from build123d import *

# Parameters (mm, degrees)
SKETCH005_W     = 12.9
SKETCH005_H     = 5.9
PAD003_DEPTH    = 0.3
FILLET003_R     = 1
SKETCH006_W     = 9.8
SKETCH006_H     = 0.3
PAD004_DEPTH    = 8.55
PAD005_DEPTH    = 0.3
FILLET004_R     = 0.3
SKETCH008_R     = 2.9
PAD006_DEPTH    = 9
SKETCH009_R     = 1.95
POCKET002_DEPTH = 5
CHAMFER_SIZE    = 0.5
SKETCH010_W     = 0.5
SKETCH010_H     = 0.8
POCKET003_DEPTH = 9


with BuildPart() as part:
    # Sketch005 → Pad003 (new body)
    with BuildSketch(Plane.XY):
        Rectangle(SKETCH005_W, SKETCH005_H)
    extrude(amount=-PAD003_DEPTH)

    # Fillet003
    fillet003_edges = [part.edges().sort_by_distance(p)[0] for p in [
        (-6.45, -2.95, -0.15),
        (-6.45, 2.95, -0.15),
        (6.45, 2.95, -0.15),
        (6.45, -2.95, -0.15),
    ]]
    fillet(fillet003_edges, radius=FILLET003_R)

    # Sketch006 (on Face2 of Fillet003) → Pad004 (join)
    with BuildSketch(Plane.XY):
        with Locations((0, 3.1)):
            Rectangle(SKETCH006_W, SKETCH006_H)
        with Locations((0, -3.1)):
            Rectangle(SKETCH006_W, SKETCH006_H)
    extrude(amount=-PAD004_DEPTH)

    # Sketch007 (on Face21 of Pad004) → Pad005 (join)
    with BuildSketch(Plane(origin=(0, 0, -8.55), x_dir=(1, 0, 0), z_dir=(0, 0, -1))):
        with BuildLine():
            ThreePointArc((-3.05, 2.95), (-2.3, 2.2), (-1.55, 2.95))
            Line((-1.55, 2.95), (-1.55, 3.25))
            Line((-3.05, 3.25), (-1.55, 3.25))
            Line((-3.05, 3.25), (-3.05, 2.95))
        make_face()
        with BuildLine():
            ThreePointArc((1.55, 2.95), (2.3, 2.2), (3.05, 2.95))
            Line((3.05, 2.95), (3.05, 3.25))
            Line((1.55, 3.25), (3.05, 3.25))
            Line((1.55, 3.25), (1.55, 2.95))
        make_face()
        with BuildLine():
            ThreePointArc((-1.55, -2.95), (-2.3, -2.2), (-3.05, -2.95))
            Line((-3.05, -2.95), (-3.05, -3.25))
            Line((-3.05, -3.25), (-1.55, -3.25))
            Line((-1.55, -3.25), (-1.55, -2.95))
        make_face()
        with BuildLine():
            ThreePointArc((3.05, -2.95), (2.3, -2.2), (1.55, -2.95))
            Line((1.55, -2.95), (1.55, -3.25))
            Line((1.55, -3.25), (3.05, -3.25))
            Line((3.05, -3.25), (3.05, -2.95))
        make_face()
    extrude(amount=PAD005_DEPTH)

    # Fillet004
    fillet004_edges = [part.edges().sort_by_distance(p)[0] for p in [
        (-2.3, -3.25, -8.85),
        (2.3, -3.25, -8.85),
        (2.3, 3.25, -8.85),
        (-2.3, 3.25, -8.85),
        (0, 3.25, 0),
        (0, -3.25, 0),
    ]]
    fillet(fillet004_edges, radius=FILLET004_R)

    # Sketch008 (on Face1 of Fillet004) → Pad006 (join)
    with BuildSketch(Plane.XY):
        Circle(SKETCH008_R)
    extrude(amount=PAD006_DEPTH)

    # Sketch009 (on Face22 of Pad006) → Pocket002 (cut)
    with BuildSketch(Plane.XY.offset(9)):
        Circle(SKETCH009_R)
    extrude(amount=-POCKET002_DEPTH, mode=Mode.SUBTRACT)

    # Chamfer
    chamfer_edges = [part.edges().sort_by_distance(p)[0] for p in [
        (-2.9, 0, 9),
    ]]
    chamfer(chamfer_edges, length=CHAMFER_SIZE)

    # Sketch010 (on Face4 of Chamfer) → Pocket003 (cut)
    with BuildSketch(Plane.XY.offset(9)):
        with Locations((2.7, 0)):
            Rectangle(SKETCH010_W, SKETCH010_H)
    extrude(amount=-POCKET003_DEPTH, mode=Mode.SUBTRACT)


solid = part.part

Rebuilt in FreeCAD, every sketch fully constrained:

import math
import FreeCAD as App
import Part
import Sketcher
from FreeCAD import Vector


def edges_at(feature, points):
    """Names of the edges that pass closest to the given points."""
    edges = feature.Shape.Edges
    near = lambda p: min(range(len(edges)), key=lambda i: edges[i].distToShape(Part.Vertex(*p))[0])
    return sorted({f"Edge{near(p) + 1}" for p in points})


def add_polygon(sketch, points):
    """Adds a closed chain of lines whose ends are joined by coincident constraints."""
    first, n = sketch.GeometryCount, len(points)
    for a, b in zip(points, points[1:] + points[:1]):
        sketch.addGeometry(Part.LineSegment(App.Vector(*a, 0), App.Vector(*b, 0)), False)
    for i in range(n):
        sketch.addConstraint(Sketcher.Constraint("Coincident", first + i, 2, first + (i + 1) % n, 1))

doc = App.newDocument("Part")
body = doc.addObject("PartDesign::Body", "Body")

sketch1 = doc.addObject("Sketcher::SketchObject", "Sketch")
body.addObject(sketch1)
sketch1.AttachmentSupport = (doc.XY_Plane, [""])
sketch1.MapMode = "FlatFace"
add_polygon(sketch1, [(-6.45, 2.95), (-6.45, -2.95), (6.45, -2.95), (6.45, 2.95)])
sketch1.addConstraint(Sketcher.Constraint("Vertical", 0))
sketch1.addConstraint(Sketcher.Constraint("Horizontal", 1))
sketch1.addConstraint(Sketcher.Constraint("Vertical", 2))
sketch1.addConstraint(Sketcher.Constraint("Horizontal", 3))
sketch1.addConstraint(Sketcher.Constraint("Symmetric", 0, 2, 2, 2, -1, 1))
sketch1.addConstraint(Sketcher.Constraint("DistanceX", 1, 1, 1, 2, 12.9))
sketch1.addConstraint(Sketcher.Constraint("DistanceY", 0, 2, 0, 1, 5.9))
pad1 = doc.addObject("PartDesign::Pad", "Pad")
body.addObject(pad1)
pad1.Profile = sketch1
pad1.Length = 0.3
pad1.Reversed = True
doc.recompute()

fillet = doc.addObject("PartDesign::Fillet", "Fillet")
body.addObject(fillet)
fillet.Base = (pad1, edges_at(pad1, [
    (-6.45, -2.95, -0.15),
    (-6.45, 2.95, -0.15),
    (6.45, 2.95, -0.15),
    (6.45, -2.95, -0.15),
]))
fillet.Radius = 1

sketch2 = doc.addObject("Sketcher::SketchObject", "Sketch001")
body.addObject(sketch2)
sketch2.AttachmentSupport = (doc.XY_Plane, [""])
sketch2.MapMode = "FlatFace"
add_polygon(sketch2, [(-4.9, 3.25), (-4.9, 2.95), (4.9, 2.95), (4.9, 3.25)])
add_polygon(sketch2, [(-4.9, -2.95), (-4.9, -3.25), (4.9, -3.25), (4.9, -2.95)])
sketch2.addConstraint(Sketcher.Constraint("Vertical", 0))
sketch2.addConstraint(Sketcher.Constraint("Horizontal", 1))
sketch2.addConstraint(Sketcher.Constraint("Vertical", 2))
sketch2.addConstraint(Sketcher.Constraint("Horizontal", 3))
sketch2.addConstraint(Sketcher.Constraint("Vertical", 4))
sketch2.addConstraint(Sketcher.Constraint("Horizontal", 5))
sketch2.addConstraint(Sketcher.Constraint("Vertical", 6))
sketch2.addConstraint(Sketcher.Constraint("Horizontal", 7))
sketch2.addConstraint(Sketcher.Constraint("Symmetric", 2, 2, 4, 2, -1, 1))
sketch2.addConstraint(Sketcher.Constraint("Symmetric", 0, 2, 6, 2, -1, 1))
sketch2.addConstraint(Sketcher.Constraint("Vertical", 3, 2, 4, 2))
sketch2.addConstraint(Sketcher.Constraint("DistanceX", 1, 1, 1, 2, 9.8))
sketch2.addConstraint(Sketcher.Constraint("DistanceY", 0, 2, 0, 1, 0.3))
sketch2.addConstraint(Sketcher.Constraint("DistanceY", 4, 2, 0, 2, 6.2))
pad2 = doc.addObject("PartDesign::Pad", "Pad001")
body.addObject(pad2)
pad2.Profile = sketch2
pad2.Length = 8.55
pad2.Reversed = True

sketch3 = doc.addObject("Sketcher::SketchObject", "Sketch002")
body.addObject(sketch3)
sketch3.AttachmentSupport = (doc.XY_Plane, [""])
sketch3.MapMode = "FlatFace"
sketch3.AttachmentOffset = App.Placement(Vector(0, 0, -8.55), App.Rotation())
sketch3.addGeometry(Part.ArcOfCircle(Part.Circle(Vector(-2.3, -2.95, 0), Vector(0, 0, 1), 0.75), math.radians(0), math.radians(180)), False)
sketch3.addGeometry(Part.LineSegment(Vector(-1.55, -2.95, 0), Vector(-1.55, -3.25, 0)), False)
sketch3.addGeometry(Part.LineSegment(Vector(-1.55, -3.25, 0), Vector(-3.05, -3.25, 0)), False)
sketch3.addGeometry(Part.LineSegment(Vector(-3.05, -3.25, 0), Vector(-3.05, -2.95, 0)), False)
sketch3.addGeometry(Part.ArcOfCircle(Part.Circle(Vector(2.3, -2.95, 0), Vector(0, 0, 1), 0.75), math.radians(0), math.radians(180)), False)
sketch3.addGeometry(Part.LineSegment(Vector(3.05, -2.95, 0), Vector(3.05, -3.25, 0)), False)
sketch3.addGeometry(Part.LineSegment(Vector(3.05, -3.25, 0), Vector(1.55, -3.25, 0)), False)
sketch3.addGeometry(Part.LineSegment(Vector(1.55, -3.25, 0), Vector(1.55, -2.95, 0)), False)
sketch3.addGeometry(Part.ArcOfCircle(Part.Circle(Vector(-2.3, 2.95, 0), Vector(0, 0, 1), 0.75), math.radians(180), math.radians(360)), False)
sketch3.addGeometry(Part.LineSegment(Vector(-3.05, 2.95, 0), Vector(-3.05, 3.25, 0)), False)
sketch3.addGeometry(Part.LineSegment(Vector(-3.05, 3.25, 0), Vector(-1.55, 3.25, 0)), False)
sketch3.addGeometry(Part.LineSegment(Vector(-1.55, 3.25, 0), Vector(-1.55, 2.95, 0)), False)
sketch3.addGeometry(Part.ArcOfCircle(Part.Circle(Vector(2.3, 2.95, 0), Vector(0, 0, 1), 0.75), math.radians(180), math.radians(360)), False)
sketch3.addGeometry(Part.LineSegment(Vector(1.55, 2.95, 0), Vector(1.55, 3.25, 0)), False)
sketch3.addGeometry(Part.LineSegment(Vector(1.55, 3.25, 0), Vector(3.05, 3.25, 0)), False)
sketch3.addGeometry(Part.LineSegment(Vector(3.05, 3.25, 0), Vector(3.05, 2.95, 0)), False)
sketch3.addConstraint(Sketcher.Constraint("Tangent", 0, 1, 1, 1))
sketch3.addConstraint(Sketcher.Constraint("Coincident", 1, 2, 2, 1))
sketch3.addConstraint(Sketcher.Constraint("Coincident", 2, 2, 3, 1))
sketch3.addConstraint(Sketcher.Constraint("Tangent", 3, 2, 0, 2))
sketch3.addConstraint(Sketcher.Constraint("Tangent", 4, 1, 5, 1))
sketch3.addConstraint(Sketcher.Constraint("Coincident", 5, 2, 6, 1))
sketch3.addConstraint(Sketcher.Constraint("Coincident", 6, 2, 7, 1))
sketch3.addConstraint(Sketcher.Constraint("Tangent", 7, 2, 4, 2))
sketch3.addConstraint(Sketcher.Constraint("Tangent", 8, 1, 9, 1))
sketch3.addConstraint(Sketcher.Constraint("Coincident", 9, 2, 10, 1))
sketch3.addConstraint(Sketcher.Constraint("Coincident", 10, 2, 11, 1))
sketch3.addConstraint(Sketcher.Constraint("Tangent", 11, 2, 8, 2))
sketch3.addConstraint(Sketcher.Constraint("Tangent", 12, 1, 13, 1))
sketch3.addConstraint(Sketcher.Constraint("Coincident", 13, 2, 14, 1))
sketch3.addConstraint(Sketcher.Constraint("Coincident", 14, 2, 15, 1))
sketch3.addConstraint(Sketcher.Constraint("Tangent", 15, 2, 12, 2))
sketch3.addConstraint(Sketcher.Constraint("Vertical", 1))
sketch3.addConstraint(Sketcher.Constraint("Horizontal", 2))
sketch3.addConstraint(Sketcher.Constraint("Vertical", 3))
sketch3.addConstraint(Sketcher.Constraint("Vertical", 5))
sketch3.addConstraint(Sketcher.Constraint("Horizontal", 6))
sketch3.addConstraint(Sketcher.Constraint("Vertical", 7))
sketch3.addConstraint(Sketcher.Constraint("Vertical", 9))
sketch3.addConstraint(Sketcher.Constraint("Horizontal", 10))
sketch3.addConstraint(Sketcher.Constraint("Vertical", 11))
sketch3.addConstraint(Sketcher.Constraint("Vertical", 13))
sketch3.addConstraint(Sketcher.Constraint("Horizontal", 14))
sketch3.addConstraint(Sketcher.Constraint("Vertical", 15))
sketch3.addConstraint(Sketcher.Constraint("Equal", 0, 4))
sketch3.addConstraint(Sketcher.Constraint("Equal", 4, 8))
sketch3.addConstraint(Sketcher.Constraint("Equal", 8, 12))
sketch3.addConstraint(Sketcher.Constraint("Symmetric", 4, 3, 8, 3, -1, 1))
sketch3.addConstraint(Sketcher.Constraint("Symmetric", 0, 3, 12, 3, -1, 1))
sketch3.addConstraint(Sketcher.Constraint("Symmetric", 0, 3, 4, 3, -2))
sketch3.addConstraint(Sketcher.Constraint("Horizontal", 2, 2, 5, 2))
sketch3.addConstraint(Sketcher.Constraint("Horizontal", 10, 2, 13, 2))
sketch3.addConstraint(Sketcher.Constraint("Equal", 7, 9))
sketch3.addConstraint(Sketcher.Constraint("Radius", 0, 0.75))
sketch3.addConstraint(Sketcher.Constraint("DistanceY", 1, 2, 1, 1, 0.3))
sketch3.addConstraint(Sketcher.Constraint("DistanceX", 0, 3, -1, 1, 2.3))
sketch3.addConstraint(Sketcher.Constraint("DistanceY", 0, 3, 8, 3, 5.9))
pad3 = doc.addObject("PartDesign::Pad", "Pad002")
body.addObject(pad3)
pad3.Profile = sketch3
pad3.Length = 0.3
pad3.Reversed = True
doc.recompute()

fillet2 = doc.addObject("PartDesign::Fillet", "Fillet001")
body.addObject(fillet2)
fillet2.Base = (pad3, edges_at(pad3, [
    (-2.3, -3.25, -8.85),
    (2.3, -3.25, -8.85),
    (2.3, 3.25, -8.85),
    (-2.3, 3.25, -8.85),
    (0, 3.25, 0),
    (0, -3.25, 0),
]))
fillet2.Radius = 0.3

sketch4 = doc.addObject("Sketcher::SketchObject", "Sketch003")
body.addObject(sketch4)
sketch4.AttachmentSupport = (doc.XY_Plane, [""])
sketch4.MapMode = "FlatFace"
sketch4.addGeometry(Part.Circle(Vector(0, 0, 0), Vector(0, 0, 1), 2.9), False)
sketch4.addConstraint(Sketcher.Constraint("Coincident", 0, 3, -1, 1))
sketch4.addConstraint(Sketcher.Constraint("Diameter", 0, 5.8))
pad4 = doc.addObject("PartDesign::Pad", "Pad003")
body.addObject(pad4)
pad4.Profile = sketch4
pad4.Length = 9

sketch5 = doc.addObject("Sketcher::SketchObject", "Sketch004")
body.addObject(sketch5)
sketch5.AttachmentSupport = (doc.XY_Plane, [""])
sketch5.MapMode = "FlatFace"
sketch5.AttachmentOffset = App.Placement(Vector(0, 0, 9), App.Rotation())
sketch5.addGeometry(Part.Circle(Vector(0, 0, 0), Vector(0, 0, 1), 1.95), False)
sketch5.addConstraint(Sketcher.Constraint("Coincident", 0, 3, -1, 1))
sketch5.addConstraint(Sketcher.Constraint("Diameter", 0, 3.9))
pocket1 = doc.addObject("PartDesign::Pocket", "Pocket")
body.addObject(pocket1)
pocket1.Profile = sketch5
pocket1.Length = 5
doc.recompute()

chamfer = doc.addObject("PartDesign::Chamfer", "Chamfer")
body.addObject(chamfer)
chamfer.Base = (pocket1, edges_at(pocket1, [(-2.9, 0, 9)]))
chamfer.Size = 0.5

sketch6 = doc.addObject("Sketcher::SketchObject", "Sketch005")
body.addObject(sketch6)
sketch6.AttachmentSupport = (doc.XY_Plane, [""])
sketch6.MapMode = "FlatFace"
sketch6.AttachmentOffset = App.Placement(Vector(0, 0, 9), App.Rotation())
add_polygon(sketch6, [(2.45, 0.4), (2.45, -0.4), (2.95, -0.4), (2.95, 0.4)])
sketch6.addConstraint(Sketcher.Constraint("Vertical", 0))
sketch6.addConstraint(Sketcher.Constraint("Horizontal", 1))
sketch6.addConstraint(Sketcher.Constraint("Vertical", 2))
sketch6.addConstraint(Sketcher.Constraint("Horizontal", 3))
sketch6.addConstraint(Sketcher.Constraint("DistanceX", 1, 1, 1, 2, 0.5))
sketch6.addConstraint(Sketcher.Constraint("DistanceY", 0, 2, 0, 1, 0.8))
sketch6.addConstraint(Sketcher.Constraint("DistanceY", 0, 2, -1, 1, 0.4))
sketch6.addConstraint(Sketcher.Constraint("DistanceX", -1, 1, 0, 2, 2.45))
pocket2 = doc.addObject("PartDesign::Pocket", "Pocket001")
body.addObject(pocket2)
pocket2.Profile = sketch6
pocket2.Length = 9

doc.recompute()
